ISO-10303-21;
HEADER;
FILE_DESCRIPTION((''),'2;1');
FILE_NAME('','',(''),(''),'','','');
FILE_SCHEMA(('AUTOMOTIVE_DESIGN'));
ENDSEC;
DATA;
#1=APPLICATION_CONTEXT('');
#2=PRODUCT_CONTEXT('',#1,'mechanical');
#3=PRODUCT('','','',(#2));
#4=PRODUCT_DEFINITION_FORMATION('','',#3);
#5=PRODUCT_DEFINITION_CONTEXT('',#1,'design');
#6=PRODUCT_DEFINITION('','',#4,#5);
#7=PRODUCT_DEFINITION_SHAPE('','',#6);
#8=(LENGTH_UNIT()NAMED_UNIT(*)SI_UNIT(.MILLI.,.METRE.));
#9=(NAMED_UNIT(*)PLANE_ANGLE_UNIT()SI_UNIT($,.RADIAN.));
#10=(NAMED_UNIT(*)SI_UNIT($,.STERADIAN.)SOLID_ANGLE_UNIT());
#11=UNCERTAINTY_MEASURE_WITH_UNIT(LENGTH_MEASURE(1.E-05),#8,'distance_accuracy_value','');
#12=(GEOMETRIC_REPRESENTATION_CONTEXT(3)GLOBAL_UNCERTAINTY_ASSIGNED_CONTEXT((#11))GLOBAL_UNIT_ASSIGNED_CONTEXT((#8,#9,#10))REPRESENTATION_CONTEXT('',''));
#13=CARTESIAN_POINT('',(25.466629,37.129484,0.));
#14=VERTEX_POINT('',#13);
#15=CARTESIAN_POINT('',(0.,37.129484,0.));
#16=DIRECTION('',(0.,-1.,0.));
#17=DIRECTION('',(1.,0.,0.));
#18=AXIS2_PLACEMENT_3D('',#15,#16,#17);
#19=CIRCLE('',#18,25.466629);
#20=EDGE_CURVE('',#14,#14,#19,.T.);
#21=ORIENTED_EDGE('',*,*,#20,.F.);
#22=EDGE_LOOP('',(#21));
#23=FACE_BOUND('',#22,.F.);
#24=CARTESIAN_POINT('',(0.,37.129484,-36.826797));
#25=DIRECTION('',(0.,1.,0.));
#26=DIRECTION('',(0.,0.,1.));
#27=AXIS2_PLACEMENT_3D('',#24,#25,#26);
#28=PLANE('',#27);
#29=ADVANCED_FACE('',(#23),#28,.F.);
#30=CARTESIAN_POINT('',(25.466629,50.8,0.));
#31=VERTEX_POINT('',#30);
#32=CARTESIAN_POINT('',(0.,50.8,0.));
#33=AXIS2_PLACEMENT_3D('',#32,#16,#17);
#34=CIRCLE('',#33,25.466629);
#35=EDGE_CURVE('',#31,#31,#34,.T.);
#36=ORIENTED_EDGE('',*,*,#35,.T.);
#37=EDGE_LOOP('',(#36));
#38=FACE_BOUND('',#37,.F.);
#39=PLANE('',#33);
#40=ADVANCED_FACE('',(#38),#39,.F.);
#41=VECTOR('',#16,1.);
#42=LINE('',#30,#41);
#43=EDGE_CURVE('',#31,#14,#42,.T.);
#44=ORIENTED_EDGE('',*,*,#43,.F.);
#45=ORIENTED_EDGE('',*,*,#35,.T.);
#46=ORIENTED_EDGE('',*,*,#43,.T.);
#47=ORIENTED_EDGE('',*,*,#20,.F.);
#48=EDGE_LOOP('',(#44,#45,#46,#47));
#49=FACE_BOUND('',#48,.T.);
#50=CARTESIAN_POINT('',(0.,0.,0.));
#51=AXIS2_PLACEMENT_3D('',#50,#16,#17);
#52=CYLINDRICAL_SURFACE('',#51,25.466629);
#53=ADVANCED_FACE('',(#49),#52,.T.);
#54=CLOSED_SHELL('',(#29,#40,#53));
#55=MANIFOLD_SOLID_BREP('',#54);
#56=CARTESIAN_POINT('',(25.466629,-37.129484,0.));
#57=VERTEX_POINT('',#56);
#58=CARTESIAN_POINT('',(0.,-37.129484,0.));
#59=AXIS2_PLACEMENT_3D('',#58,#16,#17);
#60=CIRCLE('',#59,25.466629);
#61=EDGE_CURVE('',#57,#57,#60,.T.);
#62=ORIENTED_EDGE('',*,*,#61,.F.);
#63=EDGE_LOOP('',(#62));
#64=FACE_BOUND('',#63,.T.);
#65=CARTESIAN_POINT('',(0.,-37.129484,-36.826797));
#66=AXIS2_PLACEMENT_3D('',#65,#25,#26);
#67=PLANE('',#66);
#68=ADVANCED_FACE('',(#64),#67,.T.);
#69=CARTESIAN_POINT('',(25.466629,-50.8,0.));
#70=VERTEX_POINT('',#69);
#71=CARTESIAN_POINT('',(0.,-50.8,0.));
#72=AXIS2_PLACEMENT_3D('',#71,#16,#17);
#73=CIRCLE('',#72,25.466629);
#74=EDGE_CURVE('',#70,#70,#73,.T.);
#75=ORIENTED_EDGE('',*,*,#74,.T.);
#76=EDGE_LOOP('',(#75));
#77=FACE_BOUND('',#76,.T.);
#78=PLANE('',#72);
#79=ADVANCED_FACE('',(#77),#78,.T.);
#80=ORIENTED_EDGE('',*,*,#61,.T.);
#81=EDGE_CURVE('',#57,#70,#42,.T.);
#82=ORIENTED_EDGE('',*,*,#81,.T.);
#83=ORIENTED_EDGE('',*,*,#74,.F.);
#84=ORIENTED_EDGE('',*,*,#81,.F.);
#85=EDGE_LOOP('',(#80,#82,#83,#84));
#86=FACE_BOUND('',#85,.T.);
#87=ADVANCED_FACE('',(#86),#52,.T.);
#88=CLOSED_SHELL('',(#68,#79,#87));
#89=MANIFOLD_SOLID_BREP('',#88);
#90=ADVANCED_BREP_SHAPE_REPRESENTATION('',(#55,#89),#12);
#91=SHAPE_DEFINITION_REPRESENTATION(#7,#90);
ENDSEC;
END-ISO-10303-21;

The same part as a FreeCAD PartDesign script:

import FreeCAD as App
import Part
import Sketcher
from FreeCAD import Vector
Q = App.Units.Quantity

doc = App.newDocument("Part")
body = doc.addObject("PartDesign::Body", "Body")
body.AllowCompound = True

# Sketch on XZ plane
sketch1 = body.newObject("Sketcher::SketchObject", "Sketch")
sketch1.AttachmentSupport = (doc.getObject("XZ_Plane"), [""])
sketch1.MapMode = "FlatFace"
sketch1.addGeometry(Part.Circle(Vector(0, 0, 0), Vector(0, 0, 1), 25.466629), False)
sketch1.addConstraint([
    Sketcher.Constraint("Coincident", 0, 3, -1, 1),
    Sketcher.Constraint("Diameter", 0, 50.933258),
])
pad1 = body.newObject("PartDesign::Pad", "Pad")
pad1.Profile = sketch1
pad1.Length = Q("4 in")
pad1.Midplane = True

# Sketch on YZ plane
sketch2 = body.newObject("Sketcher::SketchObject", "Sketch001")
sketch2.AttachmentSupport = (doc.getObject("YZ_Plane"), [""])
sketch2.MapMode = "FlatFace"
sketch2.addGeometry([
    Part.LineSegment(Vector(-37.129484, 36.826797, 0), Vector(-37.129484, -36.826797, 0)),
    Part.LineSegment(Vector(-37.129484, -36.826797, 0), Vector(37.129484, -36.826797, 0)),
    Part.LineSegment(Vector(37.129484, -36.826797, 0), Vector(37.129484, 36.826797, 0)),
    Part.LineSegment(Vector(37.129484, 36.826797, 0), Vector(-37.129484, 36.826797, 0)),
], False)
sketch2.addConstraint([
    Sketcher.Constraint("Coincident", 0, 2, 1, 1),
    Sketcher.Constraint("Coincident", 1, 2, 2, 1),
    Sketcher.Constraint("Coincident", 2, 2, 3, 1),
    Sketcher.Constraint("Coincident", 3, 2, 0, 1),
    Sketcher.Constraint("Vertical", 0),
    Sketcher.Constraint("Horizontal", 1),
    Sketcher.Constraint("Vertical", 2),
    Sketcher.Constraint("Horizontal", 3),
    Sketcher.Constraint("Symmetric", 0, 2, 2, 2, -1, 1),
    Sketcher.Constraint("DistanceX", 1, 1, 1, 2, 74.258968),
    Sketcher.Constraint("DistanceY", 0, 2, 0, 1, 73.653594),
])
pocket1 = body.newObject("PartDesign::Pocket", "Pocket")
pocket1.Profile = sketch2
pocket1.Length = Q("4 in")
pocket1.Midplane = True

doc.recompute()
